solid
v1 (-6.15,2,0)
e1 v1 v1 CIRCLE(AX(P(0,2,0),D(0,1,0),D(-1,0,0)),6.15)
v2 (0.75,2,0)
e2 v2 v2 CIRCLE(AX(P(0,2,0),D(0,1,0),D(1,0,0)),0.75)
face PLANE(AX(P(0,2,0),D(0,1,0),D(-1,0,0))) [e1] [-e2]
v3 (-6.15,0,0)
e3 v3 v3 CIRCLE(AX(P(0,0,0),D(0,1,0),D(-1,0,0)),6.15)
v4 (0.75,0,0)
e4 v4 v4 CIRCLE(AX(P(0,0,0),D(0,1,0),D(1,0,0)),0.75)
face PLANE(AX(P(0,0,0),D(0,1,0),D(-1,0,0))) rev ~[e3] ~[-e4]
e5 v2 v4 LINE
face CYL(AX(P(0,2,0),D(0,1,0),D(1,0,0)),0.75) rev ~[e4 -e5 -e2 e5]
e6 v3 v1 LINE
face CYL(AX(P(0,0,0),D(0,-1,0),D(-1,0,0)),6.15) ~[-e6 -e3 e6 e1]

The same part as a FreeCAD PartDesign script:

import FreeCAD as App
import Part
import Sketcher
from FreeCAD import Vector
Q = App.Units.Quantity

doc = App.newDocument("Part")
params = doc.addObject("Spreadsheet::Sheet", "Params")
for row, (alias, value) in enumerate([
    ("sketch1_diameter", "12.3 mm"),
    ("pad1_length", "2 mm"),
    ("sketch2_diameter", "1.5 mm"),
    ("pocket1_length", "2 mm"),
], start=1):
    params.set(f"A{row}", alias)
    params.set(f"B{row}", "=" + value)
    params.setAlias(f"B{row}", alias)

body = doc.addObject("PartDesign::Body", "Body")

sketch1 = body.newObject("Sketcher::SketchObject", "Sketch")
sketch1.AttachmentSupport = (doc.getObject("XZ_Plane"), [""])
sketch1.MapMode = "FlatFace"
sketch1.addGeometry(Part.Circle(Vector(0, 0, 0), Vector(0, 0, 1), 6), False)
sketch1.addConstraint([
    Sketcher.Constraint("Coincident", 0, 3, -1, 1),
    Sketcher.Constraint("Diameter", 0, Q("12.3 mm")),
])
sketch1.setExpression("Constraints[1]", "Params.sketch1_diameter")
pad1 = body.newObject("PartDesign::Pad", "Pad")
pad1.Profile = sketch1
pad1.setExpression("Length", "Params.pad1_length")
pad1.Reversed = True

sketch2 = body.newObject("Sketcher::SketchObject", "Sketch001")
sketch2.AttachmentSupport = (doc.getObject("XZ_Plane"), [""])
sketch2.MapMode = "FlatFace"
sketch2.AttachmentOffset = App.Placement(Vector(0, 0, -2), App.Rotation())
sketch2.addGeometry(Part.Circle(Vector(0, 0, 0), Vector(0, 0, 1), 0.8), False)
sketch2.addConstraint([
    Sketcher.Constraint("Coincident", 0, 3, -1, 1),
    Sketcher.Constraint("Diameter", 0, Q("1.5 mm")),
])
sketch2.setExpression("Constraints[1]", "Params.sketch2_diameter")
pocket1 = body.newObject("PartDesign::Pocket", "Pocket")
pocket1.Profile = sketch2
pocket1.setExpression("Length", "Params.pocket1_length")
pocket1.Reversed = True

doc.recompute()
